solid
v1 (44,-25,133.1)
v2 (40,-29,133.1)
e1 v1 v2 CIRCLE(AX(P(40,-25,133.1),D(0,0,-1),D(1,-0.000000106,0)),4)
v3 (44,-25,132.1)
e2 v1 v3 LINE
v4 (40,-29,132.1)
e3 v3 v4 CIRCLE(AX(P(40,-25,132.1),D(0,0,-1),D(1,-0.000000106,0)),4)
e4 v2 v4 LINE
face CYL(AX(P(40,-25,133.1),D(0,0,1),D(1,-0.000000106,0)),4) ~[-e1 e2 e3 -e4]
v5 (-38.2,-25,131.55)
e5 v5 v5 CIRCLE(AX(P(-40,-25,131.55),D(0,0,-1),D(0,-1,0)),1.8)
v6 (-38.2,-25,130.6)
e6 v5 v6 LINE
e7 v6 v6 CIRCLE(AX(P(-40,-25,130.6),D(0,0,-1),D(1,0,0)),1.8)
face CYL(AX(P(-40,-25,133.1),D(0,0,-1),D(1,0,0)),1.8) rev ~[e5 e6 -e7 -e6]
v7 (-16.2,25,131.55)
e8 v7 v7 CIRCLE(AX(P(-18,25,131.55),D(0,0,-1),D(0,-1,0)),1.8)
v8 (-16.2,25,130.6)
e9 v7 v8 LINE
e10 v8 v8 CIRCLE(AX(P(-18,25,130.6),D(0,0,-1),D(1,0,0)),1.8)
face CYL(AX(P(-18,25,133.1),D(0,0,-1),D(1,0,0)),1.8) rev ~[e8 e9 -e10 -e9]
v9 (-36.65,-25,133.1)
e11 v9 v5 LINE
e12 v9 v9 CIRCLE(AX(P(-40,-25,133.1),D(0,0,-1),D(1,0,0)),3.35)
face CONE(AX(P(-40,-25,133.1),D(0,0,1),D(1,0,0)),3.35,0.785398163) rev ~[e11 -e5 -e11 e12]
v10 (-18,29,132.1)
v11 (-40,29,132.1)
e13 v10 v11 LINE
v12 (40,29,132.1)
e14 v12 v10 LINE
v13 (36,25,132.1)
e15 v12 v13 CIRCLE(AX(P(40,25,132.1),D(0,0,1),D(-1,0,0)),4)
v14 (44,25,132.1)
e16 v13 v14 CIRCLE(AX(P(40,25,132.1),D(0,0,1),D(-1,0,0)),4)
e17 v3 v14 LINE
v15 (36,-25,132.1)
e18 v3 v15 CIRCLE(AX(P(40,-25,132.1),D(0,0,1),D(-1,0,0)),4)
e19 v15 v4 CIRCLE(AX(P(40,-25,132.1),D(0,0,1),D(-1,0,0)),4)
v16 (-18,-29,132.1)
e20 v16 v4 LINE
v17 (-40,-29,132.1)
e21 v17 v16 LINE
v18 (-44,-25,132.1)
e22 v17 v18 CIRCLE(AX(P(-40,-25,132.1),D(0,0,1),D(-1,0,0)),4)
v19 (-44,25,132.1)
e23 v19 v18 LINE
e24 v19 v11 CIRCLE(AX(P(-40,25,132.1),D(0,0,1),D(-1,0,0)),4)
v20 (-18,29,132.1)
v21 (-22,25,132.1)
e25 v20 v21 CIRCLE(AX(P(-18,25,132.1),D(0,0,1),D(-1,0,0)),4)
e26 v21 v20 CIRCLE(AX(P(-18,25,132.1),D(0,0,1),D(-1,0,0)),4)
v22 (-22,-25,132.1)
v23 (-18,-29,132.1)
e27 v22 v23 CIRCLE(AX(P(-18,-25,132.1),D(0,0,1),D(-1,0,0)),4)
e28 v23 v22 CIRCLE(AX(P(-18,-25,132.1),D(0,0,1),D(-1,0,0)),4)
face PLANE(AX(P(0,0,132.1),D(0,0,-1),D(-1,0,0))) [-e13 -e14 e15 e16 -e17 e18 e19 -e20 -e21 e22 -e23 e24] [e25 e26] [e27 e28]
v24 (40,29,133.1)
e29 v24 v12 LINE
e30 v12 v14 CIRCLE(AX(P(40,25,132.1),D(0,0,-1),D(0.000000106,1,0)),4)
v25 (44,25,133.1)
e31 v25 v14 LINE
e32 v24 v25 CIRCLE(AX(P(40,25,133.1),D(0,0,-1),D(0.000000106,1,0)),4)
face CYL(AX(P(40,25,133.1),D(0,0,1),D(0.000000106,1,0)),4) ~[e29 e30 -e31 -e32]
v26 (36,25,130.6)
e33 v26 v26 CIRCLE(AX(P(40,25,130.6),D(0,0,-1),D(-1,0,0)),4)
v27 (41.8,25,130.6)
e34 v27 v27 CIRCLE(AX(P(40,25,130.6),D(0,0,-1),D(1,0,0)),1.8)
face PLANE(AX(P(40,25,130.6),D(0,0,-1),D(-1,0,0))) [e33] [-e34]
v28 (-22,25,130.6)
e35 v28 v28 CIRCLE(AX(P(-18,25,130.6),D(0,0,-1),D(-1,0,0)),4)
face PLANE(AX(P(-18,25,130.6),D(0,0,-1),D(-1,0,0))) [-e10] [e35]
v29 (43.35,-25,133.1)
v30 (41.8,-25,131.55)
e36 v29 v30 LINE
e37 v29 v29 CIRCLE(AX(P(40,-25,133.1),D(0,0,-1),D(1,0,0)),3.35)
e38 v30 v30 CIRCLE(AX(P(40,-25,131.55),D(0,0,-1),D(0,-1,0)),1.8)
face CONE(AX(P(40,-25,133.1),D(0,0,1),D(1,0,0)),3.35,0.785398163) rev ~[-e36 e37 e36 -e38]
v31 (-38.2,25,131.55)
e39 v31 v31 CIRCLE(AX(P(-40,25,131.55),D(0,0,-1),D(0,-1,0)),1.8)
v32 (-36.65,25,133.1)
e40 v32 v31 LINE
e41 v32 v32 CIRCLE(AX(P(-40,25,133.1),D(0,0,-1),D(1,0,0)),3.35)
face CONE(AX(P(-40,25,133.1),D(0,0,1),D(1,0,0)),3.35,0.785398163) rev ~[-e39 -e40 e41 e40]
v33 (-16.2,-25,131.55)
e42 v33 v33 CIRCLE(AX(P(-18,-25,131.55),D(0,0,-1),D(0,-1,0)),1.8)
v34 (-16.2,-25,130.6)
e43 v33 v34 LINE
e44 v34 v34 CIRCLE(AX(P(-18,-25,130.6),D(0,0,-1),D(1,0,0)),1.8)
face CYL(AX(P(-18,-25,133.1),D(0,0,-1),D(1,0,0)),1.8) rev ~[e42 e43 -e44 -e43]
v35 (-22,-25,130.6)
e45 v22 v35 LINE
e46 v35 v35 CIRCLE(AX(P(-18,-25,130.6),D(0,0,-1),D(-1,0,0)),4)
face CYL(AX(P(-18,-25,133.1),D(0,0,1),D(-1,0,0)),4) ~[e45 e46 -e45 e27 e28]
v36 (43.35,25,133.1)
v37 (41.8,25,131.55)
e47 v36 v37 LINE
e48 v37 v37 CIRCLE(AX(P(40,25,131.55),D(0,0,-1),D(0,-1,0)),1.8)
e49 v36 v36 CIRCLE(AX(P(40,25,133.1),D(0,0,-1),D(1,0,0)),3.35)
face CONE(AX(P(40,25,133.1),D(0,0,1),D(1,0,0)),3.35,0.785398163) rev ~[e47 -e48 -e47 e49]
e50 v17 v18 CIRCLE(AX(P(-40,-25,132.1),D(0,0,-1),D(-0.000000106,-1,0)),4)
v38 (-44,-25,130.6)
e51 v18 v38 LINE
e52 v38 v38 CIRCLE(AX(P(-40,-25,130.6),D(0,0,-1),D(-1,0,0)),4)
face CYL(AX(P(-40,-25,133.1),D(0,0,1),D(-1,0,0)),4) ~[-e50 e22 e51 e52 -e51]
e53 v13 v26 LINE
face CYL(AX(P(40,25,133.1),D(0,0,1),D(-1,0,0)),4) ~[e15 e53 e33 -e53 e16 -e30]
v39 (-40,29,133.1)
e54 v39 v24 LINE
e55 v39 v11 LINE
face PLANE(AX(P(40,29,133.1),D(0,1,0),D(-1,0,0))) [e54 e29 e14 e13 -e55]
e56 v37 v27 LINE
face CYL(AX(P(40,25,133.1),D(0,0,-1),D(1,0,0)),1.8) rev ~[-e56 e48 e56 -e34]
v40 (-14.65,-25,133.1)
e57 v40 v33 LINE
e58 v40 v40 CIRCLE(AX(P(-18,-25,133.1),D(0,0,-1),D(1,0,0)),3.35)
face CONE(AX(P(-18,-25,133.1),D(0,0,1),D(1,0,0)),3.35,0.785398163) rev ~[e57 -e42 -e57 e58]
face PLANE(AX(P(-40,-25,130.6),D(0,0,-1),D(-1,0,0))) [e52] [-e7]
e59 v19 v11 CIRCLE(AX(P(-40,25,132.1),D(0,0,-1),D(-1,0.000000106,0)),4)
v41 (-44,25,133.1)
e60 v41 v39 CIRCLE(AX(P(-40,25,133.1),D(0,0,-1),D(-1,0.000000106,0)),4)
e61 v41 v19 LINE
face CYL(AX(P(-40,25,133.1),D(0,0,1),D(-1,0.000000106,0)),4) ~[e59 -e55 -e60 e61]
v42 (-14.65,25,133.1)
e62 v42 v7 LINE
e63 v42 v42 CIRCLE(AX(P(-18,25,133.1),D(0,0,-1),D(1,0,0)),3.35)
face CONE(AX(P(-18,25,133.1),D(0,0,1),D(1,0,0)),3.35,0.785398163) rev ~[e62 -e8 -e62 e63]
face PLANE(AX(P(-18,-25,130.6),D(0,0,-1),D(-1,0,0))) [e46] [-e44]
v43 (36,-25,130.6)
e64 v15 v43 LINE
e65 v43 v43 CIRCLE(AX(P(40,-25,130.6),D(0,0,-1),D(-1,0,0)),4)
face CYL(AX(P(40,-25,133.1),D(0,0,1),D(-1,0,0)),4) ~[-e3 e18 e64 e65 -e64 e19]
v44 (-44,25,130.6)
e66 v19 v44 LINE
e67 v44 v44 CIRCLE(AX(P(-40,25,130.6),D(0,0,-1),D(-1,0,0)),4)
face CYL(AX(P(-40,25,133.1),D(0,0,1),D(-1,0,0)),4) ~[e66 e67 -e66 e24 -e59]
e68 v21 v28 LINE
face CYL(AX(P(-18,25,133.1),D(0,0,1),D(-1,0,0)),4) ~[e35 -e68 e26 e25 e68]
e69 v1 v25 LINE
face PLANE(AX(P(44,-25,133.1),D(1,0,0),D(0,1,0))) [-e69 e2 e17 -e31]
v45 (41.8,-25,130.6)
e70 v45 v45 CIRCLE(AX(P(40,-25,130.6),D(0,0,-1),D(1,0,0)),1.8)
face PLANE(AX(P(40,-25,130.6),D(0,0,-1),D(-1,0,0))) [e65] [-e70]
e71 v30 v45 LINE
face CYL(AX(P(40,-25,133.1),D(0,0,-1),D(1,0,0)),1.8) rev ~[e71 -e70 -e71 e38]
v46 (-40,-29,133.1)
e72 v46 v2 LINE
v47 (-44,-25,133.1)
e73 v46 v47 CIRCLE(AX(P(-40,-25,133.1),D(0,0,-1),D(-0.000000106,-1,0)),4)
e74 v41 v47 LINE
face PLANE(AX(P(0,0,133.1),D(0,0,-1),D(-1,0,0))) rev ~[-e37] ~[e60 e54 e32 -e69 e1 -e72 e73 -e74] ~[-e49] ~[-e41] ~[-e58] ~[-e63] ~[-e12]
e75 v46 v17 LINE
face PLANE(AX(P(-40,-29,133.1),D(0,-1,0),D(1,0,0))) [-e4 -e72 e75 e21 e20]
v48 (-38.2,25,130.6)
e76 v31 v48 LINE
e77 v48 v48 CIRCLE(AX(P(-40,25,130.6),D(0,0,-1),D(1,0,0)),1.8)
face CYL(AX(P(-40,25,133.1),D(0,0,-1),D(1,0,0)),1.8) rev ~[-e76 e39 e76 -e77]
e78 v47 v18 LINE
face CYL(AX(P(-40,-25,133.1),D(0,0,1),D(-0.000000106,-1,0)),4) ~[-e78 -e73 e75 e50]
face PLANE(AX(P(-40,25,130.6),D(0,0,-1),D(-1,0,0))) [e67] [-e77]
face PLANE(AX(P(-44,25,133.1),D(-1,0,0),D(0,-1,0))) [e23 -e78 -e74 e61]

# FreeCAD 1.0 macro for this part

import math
import FreeCAD as App
import Part
import Sketcher

V = App.Vector

doc = App.newDocument("Part")
body = doc.addObject("PartDesign::Body", "Body")

# Sketch on XY plane
sketch1 = body.newObject("Sketcher::SketchObject", "Sketch")
sketch1.AttachmentSupport = (doc.getObject("XY_Plane"), [""])
sketch1.MapMode = "FlatFace"
sketch1.addGeometry([
    Part.ArcOfCircle(Part.Circle(V(-40, 25, 0), V(0, 0, 1), 4), math.radians(90), math.radians(180)),  # 0
    Part.LineSegment(V(-44, 25, 0), V(-44, -25, 0)),  # 1
    Part.ArcOfCircle(Part.Circle(V(-40, -25, 0), V(0, 0, 1), 4), math.radians(-180), math.radians(-90)),  # 2
    Part.LineSegment(V(-40, -29, 0), V(40, -29, 0)),  # 3
    Part.ArcOfCircle(Part.Circle(V(40, -25, 0), V(0, 0, 1), 4), math.radians(-90), math.radians(0)),  # 4
    Part.LineSegment(V(44, -25, 0), V(44, 25, 0)),  # 5
    Part.ArcOfCircle(Part.Circle(V(40, 25, 0), V(0, 0, 1), 4), math.radians(0), math.radians(90)),  # 6
    Part.LineSegment(V(40, 29, 0), V(-40, 29, 0)),  # 7
], False)
sketch1.addConstraint([
    Sketcher.Constraint("Tangent", 0, 2, 1, 1),
    Sketcher.Constraint("Tangent", 1, 2, 2, 1),
    Sketcher.Constraint("Tangent", 2, 2, 3, 1),
    Sketcher.Constraint("Tangent", 3, 2, 4, 1),
    Sketcher.Constraint("Tangent", 4, 2, 5, 1),
    Sketcher.Constraint("Tangent", 5, 2, 6, 1),
    Sketcher.Constraint("Tangent", 6, 2, 7, 1),
    Sketcher.Constraint("Tangent", 7, 2, 0, 1),
    Sketcher.Constraint("Vertical", 1),
    Sketcher.Constraint("Horizontal", 3),
    Sketcher.Constraint("Vertical", 5),
    Sketcher.Constraint("Horizontal", 7),
    Sketcher.Constraint("Equal", 0, 2),
    Sketcher.Constraint("Equal", 2, 4),
    Sketcher.Constraint("Equal", 4, 6),
    Sketcher.Constraint("Symmetric", 0, 3, 4, 3, -1, 1),
    Sketcher.Constraint("Radius", 0, 4.0),
    Sketcher.Constraint("DistanceX", 3, 1, 3, 2, 80.0),
    Sketcher.Constraint("DistanceY", 1, 2, 1, 1, 50.0),
])
pad1 = body.newObject("PartDesign::Pad", "Pad")
pad1.Profile = sketch1
pad1.Length = 1

# Sketch on XY plane
sketch2 = body.newObject("Sketcher::SketchObject", "Sketch001")
sketch2.AttachmentSupport = (doc.getObject("XY_Plane"), [""])
sketch2.MapMode = "FlatFace"
sketch2.addGeometry([
    Part.Circle(V(-40, 25, 0), V(0, 0, 1), 4),  # 0
    Part.Circle(V(18, 25, 0), V(0, 0, 1), 4),  # 1
    Part.Circle(V(40, 25, 0), V(0, 0, 1), 4),  # 2
    Part.Circle(V(40, -25, 0), V(0, 0, 1), 4),  # 3
    Part.Circle(V(18, -25, 0), V(0, 0, 1), 4),  # 4
    Part.Circle(V(-40, -25, 0), V(0, 0, 1), 4),  # 5
], False)
sketch2.addConstraint([
    Sketcher.Constraint("Equal", 0, 1),
    Sketcher.Constraint("Equal", 1, 2),
    Sketcher.Constraint("Equal", 2, 3),
    Sketcher.Constraint("Equal", 3, 4),
    Sketcher.Constraint("Equal", 4, 5),
    Sketcher.Constraint("Symmetric", 0, 3, 3, 3, -1, 1),
    Sketcher.Constraint("Symmetric", 2, 3, 5, 3, -1, 1),
    Sketcher.Constraint("Symmetric", 0, 3, 2, 3, -2),
    Sketcher.Constraint("Symmetric", 1, 3, 4, 3, -1),
    Sketcher.Constraint("Horizontal", 0, 3, 1, 3),
    Sketcher.Constraint("Diameter", 0, 8.0),
    Sketcher.Constraint("DistanceX", 0, 3, -1, 1, 40.0),
    Sketcher.Constraint("DistanceY", -1, 1, 0, 3, 25.0),
    Sketcher.Constraint("DistanceX", -1, 1, 1, 3, 18.0),
])
pad2 = body.newObject("PartDesign::Pad", "Pad001")
pad2.Profile = sketch2
pad2.Length = 2.5

# Sketch on XY plane
sketch3 = body.newObject("Sketcher::SketchObject", "Sketch002")
sketch3.AttachmentSupport = (doc.getObject("XY_Plane"), [""])
sketch3.MapMode = "FlatFace"
sketch3.addGeometry([
    Part.Circle(V(-40, 25, 0), V(0, 0, 1), 1.8),  # 0
    Part.Circle(V(18, 25, 0), V(0, 0, 1), 1.8),  # 1
    Part.Circle(V(40, 25, 0), V(0, 0, 1), 1.8),  # 2
    Part.Circle(V(40, -25, 0), V(0, 0, 1), 1.8),  # 3
    Part.Circle(V(18, -25, 0), V(0, 0, 1), 1.8),  # 4
    Part.Circle(V(-40, -25, 0), V(0, 0, 1), 1.8),  # 5
], False)
sketch3.addConstraint([
    Sketcher.Constraint("Equal", 0, 1),
    Sketcher.Constraint("Equal", 1, 2),
    Sketcher.Constraint("Equal", 2, 3),
    Sketcher.Constraint("Equal", 3, 4),
    Sketcher.Constraint("Equal", 4, 5),
    Sketcher.Constraint("Symmetric", 0, 3, 3, 3, -1, 1),
    Sketcher.Constraint("Symmetric", 2, 3, 5, 3, -1, 1),
    Sketcher.Constraint("Symmetric", 0, 3, 2, 3, -2),
    Sketcher.Constraint("Symmetric", 1, 3, 4, 3, -1),
    Sketcher.Constraint("Horizontal", 0, 3, 1, 3),
    Sketcher.Constraint("Diameter", 0, 3.6),
    Sketcher.Constraint("DistanceX", 0, 3, -1, 1, 40.0),
    Sketcher.Constraint("DistanceY", -1, 1, 0, 3, 25.0),
    Sketcher.Constraint("DistanceX", -1, 1, 1, 3, 18.0),
])
doc.recompute()
hole = body.newObject("PartDesign::Hole", "Hole")
hole.Profile = sketch3
hole.ThreadType = "None"
hole.Diameter = 3.6
hole.DepthType = "Dimension"
hole.Depth = 25
hole.DrillPoint = "Flat"
hole.HoleCutType = "Countersink"
hole.HoleCutDiameter = 6.7
hole.HoleCutCountersinkAngle = 90
hole.Reversed = True
body2 = doc.addObject("PartDesign::Body", "Body001")
doc.recompute()

body.Placement = App.Placement(V(0, 0, 133.1), App.Rotation(V(0, 1, 0), 180))
boolean = body2.newObject("PartDesign::Boolean", "Boolean")
boolean.Type = "Fuse"
boolean.addObjects([body])

doc.recompute()
